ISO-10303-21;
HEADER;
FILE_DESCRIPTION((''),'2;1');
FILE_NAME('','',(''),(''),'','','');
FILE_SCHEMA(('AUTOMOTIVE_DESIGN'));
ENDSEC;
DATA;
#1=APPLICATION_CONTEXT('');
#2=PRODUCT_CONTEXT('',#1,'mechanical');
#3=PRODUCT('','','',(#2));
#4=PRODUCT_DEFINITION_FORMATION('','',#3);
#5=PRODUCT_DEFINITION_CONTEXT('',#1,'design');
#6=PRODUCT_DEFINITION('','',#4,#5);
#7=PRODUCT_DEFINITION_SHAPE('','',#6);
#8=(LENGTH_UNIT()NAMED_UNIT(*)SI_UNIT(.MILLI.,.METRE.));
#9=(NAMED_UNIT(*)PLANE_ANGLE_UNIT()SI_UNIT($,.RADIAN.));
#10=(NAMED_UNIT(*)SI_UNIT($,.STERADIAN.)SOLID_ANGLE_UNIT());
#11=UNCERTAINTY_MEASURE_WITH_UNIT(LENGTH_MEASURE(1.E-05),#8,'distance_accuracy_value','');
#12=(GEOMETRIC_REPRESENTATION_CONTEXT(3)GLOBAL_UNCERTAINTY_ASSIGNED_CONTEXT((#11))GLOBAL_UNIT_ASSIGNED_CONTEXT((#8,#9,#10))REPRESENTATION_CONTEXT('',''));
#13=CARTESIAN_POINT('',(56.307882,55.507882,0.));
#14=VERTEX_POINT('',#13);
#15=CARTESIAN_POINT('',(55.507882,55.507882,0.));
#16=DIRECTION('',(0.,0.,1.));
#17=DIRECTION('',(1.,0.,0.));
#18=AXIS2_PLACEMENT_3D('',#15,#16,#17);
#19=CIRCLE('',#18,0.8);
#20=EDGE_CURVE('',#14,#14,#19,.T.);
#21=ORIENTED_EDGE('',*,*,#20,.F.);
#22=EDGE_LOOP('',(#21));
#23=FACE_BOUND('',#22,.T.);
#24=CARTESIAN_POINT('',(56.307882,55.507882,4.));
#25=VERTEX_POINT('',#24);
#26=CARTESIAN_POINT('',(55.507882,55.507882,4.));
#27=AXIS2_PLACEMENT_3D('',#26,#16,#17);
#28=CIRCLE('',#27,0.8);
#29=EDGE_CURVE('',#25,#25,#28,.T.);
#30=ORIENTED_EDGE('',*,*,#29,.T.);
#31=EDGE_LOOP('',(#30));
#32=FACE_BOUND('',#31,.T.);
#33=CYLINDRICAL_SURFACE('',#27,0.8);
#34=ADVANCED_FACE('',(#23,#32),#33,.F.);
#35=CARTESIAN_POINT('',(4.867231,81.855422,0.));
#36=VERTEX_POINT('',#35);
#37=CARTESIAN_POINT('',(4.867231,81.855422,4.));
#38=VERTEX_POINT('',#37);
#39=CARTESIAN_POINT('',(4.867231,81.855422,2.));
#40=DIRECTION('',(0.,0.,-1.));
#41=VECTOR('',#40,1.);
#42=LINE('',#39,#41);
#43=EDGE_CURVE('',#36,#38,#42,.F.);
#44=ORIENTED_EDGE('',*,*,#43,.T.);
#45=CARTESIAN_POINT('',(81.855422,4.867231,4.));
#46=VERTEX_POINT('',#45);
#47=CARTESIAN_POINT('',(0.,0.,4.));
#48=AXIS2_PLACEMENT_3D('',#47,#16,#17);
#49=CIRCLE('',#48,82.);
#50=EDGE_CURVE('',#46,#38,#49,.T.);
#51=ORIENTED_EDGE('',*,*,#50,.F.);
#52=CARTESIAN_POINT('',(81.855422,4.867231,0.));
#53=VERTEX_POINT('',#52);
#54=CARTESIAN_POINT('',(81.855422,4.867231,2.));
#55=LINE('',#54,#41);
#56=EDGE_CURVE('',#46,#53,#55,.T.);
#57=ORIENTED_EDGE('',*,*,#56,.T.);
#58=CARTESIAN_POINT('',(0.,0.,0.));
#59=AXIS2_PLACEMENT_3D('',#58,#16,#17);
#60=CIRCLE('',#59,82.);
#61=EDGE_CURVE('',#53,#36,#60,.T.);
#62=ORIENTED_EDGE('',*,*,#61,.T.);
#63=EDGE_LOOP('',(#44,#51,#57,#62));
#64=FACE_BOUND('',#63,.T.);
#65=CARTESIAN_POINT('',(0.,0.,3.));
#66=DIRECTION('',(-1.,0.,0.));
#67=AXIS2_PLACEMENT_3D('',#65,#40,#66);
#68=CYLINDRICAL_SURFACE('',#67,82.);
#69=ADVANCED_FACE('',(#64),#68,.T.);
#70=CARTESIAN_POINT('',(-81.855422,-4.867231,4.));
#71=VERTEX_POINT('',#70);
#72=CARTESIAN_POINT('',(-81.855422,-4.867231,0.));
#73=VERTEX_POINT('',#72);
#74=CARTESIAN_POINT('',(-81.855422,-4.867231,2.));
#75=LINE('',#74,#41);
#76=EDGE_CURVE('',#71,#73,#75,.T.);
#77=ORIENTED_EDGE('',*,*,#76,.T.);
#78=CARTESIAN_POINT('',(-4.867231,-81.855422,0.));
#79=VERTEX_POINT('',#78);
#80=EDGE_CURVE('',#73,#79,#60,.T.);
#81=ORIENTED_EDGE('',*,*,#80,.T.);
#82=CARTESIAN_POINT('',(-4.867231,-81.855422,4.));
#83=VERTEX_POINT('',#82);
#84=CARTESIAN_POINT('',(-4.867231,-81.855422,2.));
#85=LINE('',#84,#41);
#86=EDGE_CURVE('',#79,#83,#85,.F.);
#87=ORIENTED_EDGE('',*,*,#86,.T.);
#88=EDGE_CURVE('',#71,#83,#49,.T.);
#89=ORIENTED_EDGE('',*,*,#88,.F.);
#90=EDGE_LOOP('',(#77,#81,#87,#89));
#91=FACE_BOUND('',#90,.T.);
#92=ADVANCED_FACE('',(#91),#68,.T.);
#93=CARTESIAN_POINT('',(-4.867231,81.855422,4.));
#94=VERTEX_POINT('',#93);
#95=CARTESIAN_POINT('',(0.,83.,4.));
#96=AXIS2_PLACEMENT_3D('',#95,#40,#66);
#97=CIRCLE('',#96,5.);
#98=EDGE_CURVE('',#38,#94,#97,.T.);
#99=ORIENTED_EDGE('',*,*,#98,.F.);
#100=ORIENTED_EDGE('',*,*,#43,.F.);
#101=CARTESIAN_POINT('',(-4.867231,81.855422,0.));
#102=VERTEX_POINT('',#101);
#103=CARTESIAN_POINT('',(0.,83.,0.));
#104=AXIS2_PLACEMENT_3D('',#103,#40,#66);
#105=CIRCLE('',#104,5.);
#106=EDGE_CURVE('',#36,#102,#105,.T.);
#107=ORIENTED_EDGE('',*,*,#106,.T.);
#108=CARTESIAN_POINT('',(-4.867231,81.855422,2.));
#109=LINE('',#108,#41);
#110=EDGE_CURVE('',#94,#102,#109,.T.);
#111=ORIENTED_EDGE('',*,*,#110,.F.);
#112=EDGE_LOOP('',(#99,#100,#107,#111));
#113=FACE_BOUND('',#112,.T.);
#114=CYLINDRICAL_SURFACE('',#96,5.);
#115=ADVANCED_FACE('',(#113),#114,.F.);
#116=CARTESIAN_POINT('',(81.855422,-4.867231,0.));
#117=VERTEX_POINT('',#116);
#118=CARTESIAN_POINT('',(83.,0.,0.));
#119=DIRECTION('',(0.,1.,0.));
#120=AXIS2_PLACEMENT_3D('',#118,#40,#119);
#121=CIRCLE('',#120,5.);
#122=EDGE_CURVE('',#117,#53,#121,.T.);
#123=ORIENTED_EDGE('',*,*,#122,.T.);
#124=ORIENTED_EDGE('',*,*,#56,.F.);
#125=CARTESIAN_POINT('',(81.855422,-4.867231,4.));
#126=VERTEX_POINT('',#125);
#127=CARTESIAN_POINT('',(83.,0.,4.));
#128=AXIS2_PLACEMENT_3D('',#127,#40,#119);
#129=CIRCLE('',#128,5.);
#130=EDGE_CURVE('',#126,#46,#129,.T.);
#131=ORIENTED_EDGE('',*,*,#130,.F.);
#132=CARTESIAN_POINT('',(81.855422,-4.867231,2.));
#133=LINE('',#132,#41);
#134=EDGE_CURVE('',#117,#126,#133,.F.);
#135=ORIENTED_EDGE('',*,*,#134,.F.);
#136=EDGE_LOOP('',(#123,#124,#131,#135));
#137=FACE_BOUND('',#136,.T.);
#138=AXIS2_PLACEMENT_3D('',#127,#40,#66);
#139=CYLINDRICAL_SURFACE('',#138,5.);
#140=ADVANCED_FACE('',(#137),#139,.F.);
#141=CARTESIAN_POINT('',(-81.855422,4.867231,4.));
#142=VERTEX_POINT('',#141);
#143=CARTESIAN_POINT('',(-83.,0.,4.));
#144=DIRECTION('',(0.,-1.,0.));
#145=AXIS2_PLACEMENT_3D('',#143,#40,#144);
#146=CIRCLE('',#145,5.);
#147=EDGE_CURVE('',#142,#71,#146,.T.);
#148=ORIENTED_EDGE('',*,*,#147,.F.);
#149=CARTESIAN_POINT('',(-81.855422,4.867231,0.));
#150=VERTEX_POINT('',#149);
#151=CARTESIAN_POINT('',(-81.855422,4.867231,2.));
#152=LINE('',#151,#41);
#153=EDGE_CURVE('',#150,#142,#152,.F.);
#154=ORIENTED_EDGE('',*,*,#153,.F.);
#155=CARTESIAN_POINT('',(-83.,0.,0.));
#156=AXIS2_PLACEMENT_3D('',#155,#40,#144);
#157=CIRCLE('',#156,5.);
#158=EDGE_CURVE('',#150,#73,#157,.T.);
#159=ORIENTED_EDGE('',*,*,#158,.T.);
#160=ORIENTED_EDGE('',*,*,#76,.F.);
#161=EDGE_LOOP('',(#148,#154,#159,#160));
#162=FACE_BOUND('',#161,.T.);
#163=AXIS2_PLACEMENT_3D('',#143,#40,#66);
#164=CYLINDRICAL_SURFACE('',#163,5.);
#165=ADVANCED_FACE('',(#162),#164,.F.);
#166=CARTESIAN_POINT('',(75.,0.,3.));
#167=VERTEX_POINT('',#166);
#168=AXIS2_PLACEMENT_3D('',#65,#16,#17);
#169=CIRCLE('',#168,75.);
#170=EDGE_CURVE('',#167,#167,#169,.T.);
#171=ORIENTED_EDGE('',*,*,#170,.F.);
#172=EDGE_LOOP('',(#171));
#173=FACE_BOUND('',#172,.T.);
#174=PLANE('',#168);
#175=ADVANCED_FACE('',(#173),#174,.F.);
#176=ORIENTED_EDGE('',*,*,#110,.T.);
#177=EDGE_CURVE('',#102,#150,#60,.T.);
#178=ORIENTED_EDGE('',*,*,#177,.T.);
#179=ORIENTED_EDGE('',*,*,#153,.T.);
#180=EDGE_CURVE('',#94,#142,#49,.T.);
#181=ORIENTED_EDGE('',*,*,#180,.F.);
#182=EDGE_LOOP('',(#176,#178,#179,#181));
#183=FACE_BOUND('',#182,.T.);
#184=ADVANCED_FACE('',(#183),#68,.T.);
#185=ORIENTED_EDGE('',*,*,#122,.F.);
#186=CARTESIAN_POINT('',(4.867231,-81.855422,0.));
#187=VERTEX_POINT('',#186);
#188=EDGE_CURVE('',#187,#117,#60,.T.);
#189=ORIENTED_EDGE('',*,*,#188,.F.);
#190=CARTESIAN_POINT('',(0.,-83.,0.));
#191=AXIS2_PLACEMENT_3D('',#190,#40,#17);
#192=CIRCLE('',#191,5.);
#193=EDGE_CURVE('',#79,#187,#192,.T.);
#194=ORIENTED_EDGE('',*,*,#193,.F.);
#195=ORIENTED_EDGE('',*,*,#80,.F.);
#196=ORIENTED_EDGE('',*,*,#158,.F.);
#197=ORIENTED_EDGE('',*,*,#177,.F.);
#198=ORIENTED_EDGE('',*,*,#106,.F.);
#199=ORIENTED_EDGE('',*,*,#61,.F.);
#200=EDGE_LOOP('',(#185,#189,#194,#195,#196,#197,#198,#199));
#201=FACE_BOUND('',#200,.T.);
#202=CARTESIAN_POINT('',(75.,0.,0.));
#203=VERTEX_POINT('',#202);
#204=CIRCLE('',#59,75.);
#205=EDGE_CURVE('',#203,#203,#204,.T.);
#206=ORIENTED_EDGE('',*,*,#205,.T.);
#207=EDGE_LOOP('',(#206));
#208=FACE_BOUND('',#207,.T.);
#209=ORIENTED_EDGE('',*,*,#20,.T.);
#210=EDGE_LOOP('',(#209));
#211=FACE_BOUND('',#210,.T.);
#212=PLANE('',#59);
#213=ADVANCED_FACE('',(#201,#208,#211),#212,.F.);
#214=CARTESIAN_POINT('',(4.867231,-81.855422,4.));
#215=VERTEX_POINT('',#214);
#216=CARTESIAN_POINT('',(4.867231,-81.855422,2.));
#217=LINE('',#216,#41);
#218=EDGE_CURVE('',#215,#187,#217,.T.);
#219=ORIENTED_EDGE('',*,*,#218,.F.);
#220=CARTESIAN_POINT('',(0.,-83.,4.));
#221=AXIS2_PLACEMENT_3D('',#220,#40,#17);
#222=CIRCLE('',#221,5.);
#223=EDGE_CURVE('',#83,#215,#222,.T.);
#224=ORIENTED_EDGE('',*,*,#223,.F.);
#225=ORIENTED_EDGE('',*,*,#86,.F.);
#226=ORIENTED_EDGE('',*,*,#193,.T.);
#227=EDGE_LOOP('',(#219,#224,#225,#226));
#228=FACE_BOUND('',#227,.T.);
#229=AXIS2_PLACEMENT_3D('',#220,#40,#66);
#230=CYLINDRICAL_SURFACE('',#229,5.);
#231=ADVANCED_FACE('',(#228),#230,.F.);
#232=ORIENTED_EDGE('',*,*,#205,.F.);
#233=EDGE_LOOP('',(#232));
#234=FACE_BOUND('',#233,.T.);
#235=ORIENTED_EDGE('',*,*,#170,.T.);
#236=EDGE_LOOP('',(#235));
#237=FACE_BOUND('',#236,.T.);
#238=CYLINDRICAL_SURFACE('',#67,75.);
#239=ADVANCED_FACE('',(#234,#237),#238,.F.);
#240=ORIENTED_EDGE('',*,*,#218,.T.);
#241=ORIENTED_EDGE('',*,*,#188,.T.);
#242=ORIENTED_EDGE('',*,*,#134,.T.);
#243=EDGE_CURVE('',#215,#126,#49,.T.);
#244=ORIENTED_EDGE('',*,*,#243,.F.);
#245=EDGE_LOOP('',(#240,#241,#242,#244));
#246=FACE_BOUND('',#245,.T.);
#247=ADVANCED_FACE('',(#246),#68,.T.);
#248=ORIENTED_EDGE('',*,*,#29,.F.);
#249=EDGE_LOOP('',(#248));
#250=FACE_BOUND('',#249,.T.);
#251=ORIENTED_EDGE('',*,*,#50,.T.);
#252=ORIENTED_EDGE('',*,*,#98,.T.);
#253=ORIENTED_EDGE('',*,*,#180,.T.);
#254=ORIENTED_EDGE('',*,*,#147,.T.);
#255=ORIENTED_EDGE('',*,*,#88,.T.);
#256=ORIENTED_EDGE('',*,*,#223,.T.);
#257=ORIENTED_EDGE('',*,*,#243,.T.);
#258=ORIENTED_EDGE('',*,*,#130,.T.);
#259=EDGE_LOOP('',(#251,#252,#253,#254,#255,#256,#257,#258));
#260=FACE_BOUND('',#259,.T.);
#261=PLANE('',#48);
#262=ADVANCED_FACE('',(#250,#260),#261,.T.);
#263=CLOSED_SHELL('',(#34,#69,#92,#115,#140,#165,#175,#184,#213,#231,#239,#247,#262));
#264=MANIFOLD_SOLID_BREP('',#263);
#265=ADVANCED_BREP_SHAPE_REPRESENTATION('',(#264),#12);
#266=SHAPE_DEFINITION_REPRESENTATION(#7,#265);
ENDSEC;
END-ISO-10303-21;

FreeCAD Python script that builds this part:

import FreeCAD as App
import Part
import Sketcher

doc = App.newDocument("Part")
body = doc.addObject("PartDesign::Body", "Body")

# Sketch on XY plane
sketch1 = doc.addObject("Sketcher::SketchObject", "Sketch")
body.addObject(sketch1)
sketch1.AttachmentSupport = (doc.XY_Plane, [""])
sketch1.MapMode = "FlatFace"
sketch1.addGeometry(Part.Circle(App.Vector(0, 0, 0), App.Vector(0, 0, 1), 82), False)
sketch1.addGeometry(Part.Circle(App.Vector(0, 0, 0), App.Vector(0, 0, 1), 75), False)
sketch1.addConstraint(Sketcher.Constraint("Coincident", 0, 3, -1, 1))
sketch1.addConstraint(Sketcher.Constraint("Coincident", 1, 3, -1, 1))
sketch1.addConstraint(Sketcher.Constraint("Diameter", 0, 164.0))
sketch1.addConstraint(Sketcher.Constraint("Diameter", 1, 150.0))
pad1 = doc.addObject("PartDesign::Pad", "Pad")
body.addObject(pad1)
pad1.Profile = sketch1
pad1.Length = 3

# Sketch on XY plane
sketch2 = doc.addObject("Sketcher::SketchObject", "Sketch001")
body.addObject(sketch2)
sketch2.AttachmentSupport = (doc.XY_Plane, [""])
sketch2.MapMode = "FlatFace"
sketch2.AttachmentOffset = App.Placement(App.Vector(0, 0, 3), App.Rotation())
sketch2.addGeometry(Part.Circle(App.Vector(0, 0, 0), App.Vector(0, 0, 1), 82), False)
sketch2.addConstraint(Sketcher.Constraint("Coincident", 0, 3, -1, 1))
sketch2.addConstraint(Sketcher.Constraint("Diameter", 0, 164.0))
pad2 = doc.addObject("PartDesign::Pad", "Pad001")
body.addObject(pad2)
pad2.Profile = sketch2
pad2.Length = 1

# Sketch on XY plane
sketch3 = doc.addObject("Sketcher::SketchObject", "Sketch002")
body.addObject(sketch3)
sketch3.AttachmentSupport = (doc.XY_Plane, [""])
sketch3.MapMode = "FlatFace"
sketch3.addGeometry(Part.Circle(App.Vector(0, 83, 0), App.Vector(0, 0, 1), 5), False)
sketch3.addConstraint(Sketcher.Constraint("PointOnObject", 0, 3, -2))
sketch3.addConstraint(Sketcher.Constraint("Diameter", 0, 10.0))
sketch3.addConstraint(Sketcher.Constraint("DistanceY", -1, 1, 0, 3, 83.0))
pocket1 = doc.addObject("PartDesign::Pocket", "Pocket")
body.addObject(pocket1)
pocket1.Profile = sketch3
pocket1.Type = "ThroughAll"
pocket1.Reversed = True
doc.recompute()

polarpattern = doc.addObject("PartDesign::PolarPattern", "PolarPattern")
body.addObject(polarpattern)
polarpattern.Originals = [pocket1]
polarpattern.Axis = (doc.Z_Axis, [""])
polarpattern.Angle = 360
polarpattern.Occurrences = 4
body.Tip = polarpattern

# Sketch on XY plane
sketch4 = doc.addObject("Sketcher::SketchObject", "Sketch003")
body.addObject(sketch4)
sketch4.AttachmentSupport = (doc.XY_Plane, [""])
sketch4.MapMode = "FlatFace"
sketch4.AttachmentOffset = App.Placement(App.Vector(0, 0, 4), App.Rotation())
sketch4.addGeometry(Part.Circle(App.Vector(55.5, 55.5, 0), App.Vector(0, 0, 1), 0.8), False)
sketch4.addConstraint(Sketcher.Constraint("Diameter", 0, 1.6))
sketch4.addConstraint(Sketcher.Constraint("DistanceX", -1, 1, 0, 3, 55.507882))
sketch4.addConstraint(Sketcher.Constraint("DistanceY", -1, 1, 0, 3, 55.507882))
doc.recompute()
hole = doc.addObject("PartDesign::Hole", "Hole")
body.addObject(hole)
hole.Profile = sketch4
hole.ThreadType = "None"
hole.Diameter = 1.6
hole.DepthType = "ThroughAll"

doc.recompute()
